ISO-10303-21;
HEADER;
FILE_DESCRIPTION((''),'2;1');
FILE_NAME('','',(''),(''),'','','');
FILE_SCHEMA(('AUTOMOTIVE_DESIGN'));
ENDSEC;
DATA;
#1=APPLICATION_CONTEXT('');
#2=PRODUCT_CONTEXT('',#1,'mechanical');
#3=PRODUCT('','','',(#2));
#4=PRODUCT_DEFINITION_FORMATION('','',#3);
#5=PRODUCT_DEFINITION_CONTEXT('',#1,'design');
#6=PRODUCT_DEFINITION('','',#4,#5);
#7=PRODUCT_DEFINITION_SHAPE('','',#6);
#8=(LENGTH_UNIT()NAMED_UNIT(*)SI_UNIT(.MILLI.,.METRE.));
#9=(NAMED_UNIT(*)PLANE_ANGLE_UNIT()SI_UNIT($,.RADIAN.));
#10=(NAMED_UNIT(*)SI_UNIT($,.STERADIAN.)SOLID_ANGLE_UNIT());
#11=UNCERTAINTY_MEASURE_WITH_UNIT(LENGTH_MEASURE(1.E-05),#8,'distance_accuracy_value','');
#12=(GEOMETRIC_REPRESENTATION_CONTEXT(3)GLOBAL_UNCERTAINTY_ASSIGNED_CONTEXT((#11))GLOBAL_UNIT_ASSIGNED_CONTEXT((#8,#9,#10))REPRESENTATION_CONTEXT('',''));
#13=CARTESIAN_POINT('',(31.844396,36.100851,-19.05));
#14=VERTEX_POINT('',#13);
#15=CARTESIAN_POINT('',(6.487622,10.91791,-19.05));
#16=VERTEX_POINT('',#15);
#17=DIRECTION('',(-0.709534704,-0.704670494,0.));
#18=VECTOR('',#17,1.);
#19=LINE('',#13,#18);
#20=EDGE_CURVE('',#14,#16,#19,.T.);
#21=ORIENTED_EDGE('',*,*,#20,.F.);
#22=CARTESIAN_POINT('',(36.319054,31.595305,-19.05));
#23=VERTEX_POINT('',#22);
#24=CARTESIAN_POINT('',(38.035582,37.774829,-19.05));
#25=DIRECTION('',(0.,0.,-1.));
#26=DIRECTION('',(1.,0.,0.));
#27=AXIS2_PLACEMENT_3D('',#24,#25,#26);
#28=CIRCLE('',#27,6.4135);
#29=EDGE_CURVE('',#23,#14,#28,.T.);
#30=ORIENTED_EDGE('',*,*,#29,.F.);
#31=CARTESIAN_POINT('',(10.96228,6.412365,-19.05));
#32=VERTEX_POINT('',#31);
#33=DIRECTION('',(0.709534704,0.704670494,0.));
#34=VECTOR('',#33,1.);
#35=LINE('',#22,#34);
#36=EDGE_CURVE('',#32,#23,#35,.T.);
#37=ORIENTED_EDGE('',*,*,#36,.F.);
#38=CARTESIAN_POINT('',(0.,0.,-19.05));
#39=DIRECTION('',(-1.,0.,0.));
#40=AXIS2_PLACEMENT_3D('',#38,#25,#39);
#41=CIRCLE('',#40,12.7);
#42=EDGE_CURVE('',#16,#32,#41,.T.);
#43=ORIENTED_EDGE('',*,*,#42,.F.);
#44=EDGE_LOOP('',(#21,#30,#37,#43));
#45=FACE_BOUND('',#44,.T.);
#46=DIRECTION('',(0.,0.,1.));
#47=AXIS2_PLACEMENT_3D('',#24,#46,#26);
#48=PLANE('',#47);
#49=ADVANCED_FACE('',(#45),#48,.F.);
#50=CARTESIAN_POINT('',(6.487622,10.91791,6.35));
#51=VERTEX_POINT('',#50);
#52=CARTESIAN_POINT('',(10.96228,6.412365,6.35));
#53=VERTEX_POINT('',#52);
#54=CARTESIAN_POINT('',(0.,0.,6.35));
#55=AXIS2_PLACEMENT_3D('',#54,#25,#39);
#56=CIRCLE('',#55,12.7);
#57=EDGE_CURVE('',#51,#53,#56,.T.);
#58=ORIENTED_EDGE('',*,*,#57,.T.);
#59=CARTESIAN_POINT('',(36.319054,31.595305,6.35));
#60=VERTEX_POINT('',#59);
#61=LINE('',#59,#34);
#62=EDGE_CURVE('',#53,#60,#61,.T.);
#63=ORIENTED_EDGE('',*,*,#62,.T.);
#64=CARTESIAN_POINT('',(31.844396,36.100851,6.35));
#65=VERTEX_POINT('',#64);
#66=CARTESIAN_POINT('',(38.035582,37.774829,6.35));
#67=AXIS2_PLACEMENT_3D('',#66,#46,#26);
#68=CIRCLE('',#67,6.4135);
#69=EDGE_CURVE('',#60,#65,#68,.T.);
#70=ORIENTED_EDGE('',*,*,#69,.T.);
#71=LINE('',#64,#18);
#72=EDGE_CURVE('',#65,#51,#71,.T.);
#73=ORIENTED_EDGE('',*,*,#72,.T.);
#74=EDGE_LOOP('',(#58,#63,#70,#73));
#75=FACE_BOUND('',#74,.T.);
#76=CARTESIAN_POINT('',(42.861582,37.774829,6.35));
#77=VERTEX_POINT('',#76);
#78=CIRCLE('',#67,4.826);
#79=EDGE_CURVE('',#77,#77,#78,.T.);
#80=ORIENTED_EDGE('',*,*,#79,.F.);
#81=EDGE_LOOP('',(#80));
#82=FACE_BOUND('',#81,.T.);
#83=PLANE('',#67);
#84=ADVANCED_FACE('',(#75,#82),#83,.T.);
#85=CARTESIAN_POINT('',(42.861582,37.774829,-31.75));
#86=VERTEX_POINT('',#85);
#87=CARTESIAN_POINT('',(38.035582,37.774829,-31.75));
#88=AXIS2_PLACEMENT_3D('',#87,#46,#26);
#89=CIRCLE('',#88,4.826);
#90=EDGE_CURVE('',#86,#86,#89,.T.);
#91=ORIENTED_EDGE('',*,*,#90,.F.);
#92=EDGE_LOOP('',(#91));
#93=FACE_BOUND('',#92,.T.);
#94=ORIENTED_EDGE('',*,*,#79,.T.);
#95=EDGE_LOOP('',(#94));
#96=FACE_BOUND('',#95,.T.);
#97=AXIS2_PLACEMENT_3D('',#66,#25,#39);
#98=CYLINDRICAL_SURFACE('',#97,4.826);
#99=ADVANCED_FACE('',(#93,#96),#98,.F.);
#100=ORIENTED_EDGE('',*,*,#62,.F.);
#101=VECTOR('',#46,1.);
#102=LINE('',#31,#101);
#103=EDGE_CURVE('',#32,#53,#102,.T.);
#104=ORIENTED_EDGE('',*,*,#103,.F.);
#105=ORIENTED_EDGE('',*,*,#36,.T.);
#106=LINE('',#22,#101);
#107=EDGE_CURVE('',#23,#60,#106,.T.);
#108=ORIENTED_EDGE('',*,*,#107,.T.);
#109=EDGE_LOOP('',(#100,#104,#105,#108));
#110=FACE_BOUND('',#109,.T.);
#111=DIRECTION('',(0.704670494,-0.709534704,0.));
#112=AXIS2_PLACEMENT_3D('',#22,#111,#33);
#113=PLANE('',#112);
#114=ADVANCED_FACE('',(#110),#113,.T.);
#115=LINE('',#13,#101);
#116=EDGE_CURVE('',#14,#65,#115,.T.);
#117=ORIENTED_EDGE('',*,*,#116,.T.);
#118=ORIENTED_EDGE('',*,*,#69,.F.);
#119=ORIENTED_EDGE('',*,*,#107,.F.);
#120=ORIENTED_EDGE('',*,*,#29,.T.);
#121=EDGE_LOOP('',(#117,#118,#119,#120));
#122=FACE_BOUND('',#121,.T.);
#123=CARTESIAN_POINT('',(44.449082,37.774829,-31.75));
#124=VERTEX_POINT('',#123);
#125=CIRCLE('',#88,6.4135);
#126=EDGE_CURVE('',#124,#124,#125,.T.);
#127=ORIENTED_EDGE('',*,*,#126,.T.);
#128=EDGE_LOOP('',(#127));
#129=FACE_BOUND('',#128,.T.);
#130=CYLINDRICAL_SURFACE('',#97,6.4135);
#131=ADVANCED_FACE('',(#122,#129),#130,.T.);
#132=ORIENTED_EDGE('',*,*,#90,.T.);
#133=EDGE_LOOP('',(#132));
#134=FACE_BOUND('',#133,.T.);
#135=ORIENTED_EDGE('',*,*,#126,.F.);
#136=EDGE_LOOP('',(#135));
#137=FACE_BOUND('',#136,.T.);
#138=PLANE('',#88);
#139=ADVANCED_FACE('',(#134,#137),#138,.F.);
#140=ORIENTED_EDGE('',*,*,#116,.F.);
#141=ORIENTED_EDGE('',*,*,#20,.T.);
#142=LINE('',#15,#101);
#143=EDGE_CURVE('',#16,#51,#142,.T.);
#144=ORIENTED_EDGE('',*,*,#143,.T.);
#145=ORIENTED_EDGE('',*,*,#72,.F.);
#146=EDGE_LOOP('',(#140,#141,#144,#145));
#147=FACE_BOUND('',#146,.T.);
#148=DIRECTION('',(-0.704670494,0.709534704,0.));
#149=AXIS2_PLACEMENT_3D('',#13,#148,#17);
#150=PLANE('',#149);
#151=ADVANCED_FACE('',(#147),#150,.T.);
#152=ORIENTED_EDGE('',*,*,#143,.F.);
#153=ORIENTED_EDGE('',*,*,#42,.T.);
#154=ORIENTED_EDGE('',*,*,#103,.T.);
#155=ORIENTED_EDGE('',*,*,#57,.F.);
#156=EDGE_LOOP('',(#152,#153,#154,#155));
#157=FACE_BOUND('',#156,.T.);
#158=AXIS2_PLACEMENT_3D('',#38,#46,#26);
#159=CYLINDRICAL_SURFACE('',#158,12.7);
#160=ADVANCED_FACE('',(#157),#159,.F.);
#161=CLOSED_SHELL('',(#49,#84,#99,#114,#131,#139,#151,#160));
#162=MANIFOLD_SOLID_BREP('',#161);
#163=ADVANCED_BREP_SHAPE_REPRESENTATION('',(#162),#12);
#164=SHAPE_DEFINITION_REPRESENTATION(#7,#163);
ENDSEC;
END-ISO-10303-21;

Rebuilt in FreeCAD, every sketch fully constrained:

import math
import FreeCAD as App
import Part
import Sketcher
Q = App.Units.Quantity

doc = App.newDocument("Part")
body = doc.addObject("PartDesign::Body", "Body")

sketch1 = body.newObject("Sketcher::SketchObject", "Sketch")
sketch1.AttachmentSupport = (doc.getObject("XY_Plane"), [""])
sketch1.MapMode = "FlatFace"
sketch1.AttachmentOffset = App.Placement(App.Vector(0, 0, -1.25 * 25.4), App.Rotation())
sketch1.addGeometry([
    Part.Circle(App.Vector(38, 37.8, 0), App.Vector(0, 0, 1), 6.4),
    Part.Circle(App.Vector(38, 37.8, 0), App.Vector(0, 0, 1), 4.8),
], False)
sketch1.addConstraint([
    Sketcher.Constraint("Coincident", 1, 3, 0, 3),
    Sketcher.Constraint("Diameter", 1, Q("0.38 in")),
    Sketcher.Constraint("Diameter", 0, Q("0.505 in")),
    Sketcher.Constraint("DistanceX", -1, 1, 0, 3, 38.035582),
    Sketcher.Constraint("DistanceY", -1, 1, 0, 3, 37.774829),
])
pad1 = body.newObject("PartDesign::Pad", "Pad")
pad1.Profile = sketch1
pad1.Length = Q("1.5 in")

sketch2 = body.newObject("Sketcher::SketchObject", "Sketch001")
sketch2.AttachmentSupport = (doc.getObject("XY_Plane"), [""])
sketch2.MapMode = "FlatFace"
sketch2.AttachmentOffset = App.Placement(App.Vector(0, 0, 0.25 * 25.4), App.Rotation())
sketch2.addGeometry([
    Part.LineSegment(App.Vector(32, 36, 0), App.Vector(6, 11, 0)),
    Part.ArcOfCircle(Part.Circle(App.Vector(0, 0, 0), App.Vector(0, 0, 1), 13), math.radians(30), math.radians(59)),
    Part.LineSegment(App.Vector(11, 6, 0), App.Vector(36, 32, 0)),
    Part.ArcOfCircle(Part.Circle(App.Vector(38, 38, 0), App.Vector(0, 0, 1), 6), math.radians(-165), math.radians(-106)),
], False)
sketch2.addConstraint([
    Sketcher.Constraint("Coincident", 0, 2, 1, 2),
    Sketcher.Constraint("Coincident", 1, 1, 2, 1),
    Sketcher.Constraint("Coincident", 2, 2, 3, 2),
    Sketcher.Constraint("Coincident", 3, 1, 0, 1),
    Sketcher.Constraint("Coincident", 1, 3, -1, 1),
    Sketcher.Constraint("Parallel", 0, 2),
    Sketcher.Constraint("Equal", 0, 2),
    Sketcher.Constraint("Radius", 1, Q("0.5 in")),
    Sketcher.Constraint("Radius", 3, Q("0.2525 in")),
    Sketcher.Constraint("DistanceX", 1, 1, 3, 3, 27.073302),
    Sketcher.Constraint("DistanceX", -1, 1, 3, 3, 38.035582),
    Sketcher.Constraint("DistanceY", -1, 1, 3, 3, 37.774829),
    Sketcher.Constraint("DistanceY", -1, 1, 0, 2, 10.91791),
])
pad2 = body.newObject("PartDesign::Pad", "Pad001")
pad2.Profile = sketch2
pad2.Length = Q("1 in")
pad2.Reversed = True

doc.recompute()
